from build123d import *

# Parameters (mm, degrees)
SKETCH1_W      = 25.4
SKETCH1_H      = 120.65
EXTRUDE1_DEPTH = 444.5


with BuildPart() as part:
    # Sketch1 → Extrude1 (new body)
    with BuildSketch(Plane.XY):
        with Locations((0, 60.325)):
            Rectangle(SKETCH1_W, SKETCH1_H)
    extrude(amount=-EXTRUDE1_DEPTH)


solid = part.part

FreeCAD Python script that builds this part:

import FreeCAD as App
import Part
import Sketcher
from FreeCAD import Vector
Q = App.Units.Quantity


def add_polygon(sketch, points):
    """Adds a closed chain of lines whose ends are joined by coincident constraints."""
    first, n = sketch.GeometryCount, len(points)
    for a, b in zip(points, points[1:] + points[:1]):
        sketch.addGeometry(Part.LineSegment(App.Vector(*a, 0), App.Vector(*b, 0)), False)
    for i in range(n):
        sketch.addConstraint(Sketcher.Constraint("Coincident", first + i, 2, first + (i + 1) % n, 1))

doc = App.newDocument("Part")
body = doc.addObject("PartDesign::Body", "Body")

# Sketch on XY plane
sketch1 = body.newObject("Sketcher::SketchObject", "Sketch")
sketch1.AttachmentSupport = (doc.getObject("XY_Plane"), [""])
sketch1.MapMode = "FlatFace"
add_polygon(sketch1, [(-13, 121), (-13, 0), (13, 0), (13, 121)])  # lines 0-3
sketch1.addConstraint([
    Sketcher.Constraint("Vertical", 0),
    Sketcher.Constraint("Horizontal", 1),
    Sketcher.Constraint("Vertical", 2),
    Sketcher.Constraint("Horizontal", 3),
    Sketcher.Constraint("Symmetric", 0, 2, 1, 2, -1, 1),
    Sketcher.Constraint("DistanceX", 1, 1, 1, 2, Q("1 in")),
    Sketcher.Constraint("DistanceY", 0, 2, 0, 1, Q("4.75 in")),
])
pad1 = body.newObject("PartDesign::Pad", "Pad")
pad1.Profile = sketch1
pad1.Length = Q("17.5 in")
pad1.Reversed = True

doc.recompute()
